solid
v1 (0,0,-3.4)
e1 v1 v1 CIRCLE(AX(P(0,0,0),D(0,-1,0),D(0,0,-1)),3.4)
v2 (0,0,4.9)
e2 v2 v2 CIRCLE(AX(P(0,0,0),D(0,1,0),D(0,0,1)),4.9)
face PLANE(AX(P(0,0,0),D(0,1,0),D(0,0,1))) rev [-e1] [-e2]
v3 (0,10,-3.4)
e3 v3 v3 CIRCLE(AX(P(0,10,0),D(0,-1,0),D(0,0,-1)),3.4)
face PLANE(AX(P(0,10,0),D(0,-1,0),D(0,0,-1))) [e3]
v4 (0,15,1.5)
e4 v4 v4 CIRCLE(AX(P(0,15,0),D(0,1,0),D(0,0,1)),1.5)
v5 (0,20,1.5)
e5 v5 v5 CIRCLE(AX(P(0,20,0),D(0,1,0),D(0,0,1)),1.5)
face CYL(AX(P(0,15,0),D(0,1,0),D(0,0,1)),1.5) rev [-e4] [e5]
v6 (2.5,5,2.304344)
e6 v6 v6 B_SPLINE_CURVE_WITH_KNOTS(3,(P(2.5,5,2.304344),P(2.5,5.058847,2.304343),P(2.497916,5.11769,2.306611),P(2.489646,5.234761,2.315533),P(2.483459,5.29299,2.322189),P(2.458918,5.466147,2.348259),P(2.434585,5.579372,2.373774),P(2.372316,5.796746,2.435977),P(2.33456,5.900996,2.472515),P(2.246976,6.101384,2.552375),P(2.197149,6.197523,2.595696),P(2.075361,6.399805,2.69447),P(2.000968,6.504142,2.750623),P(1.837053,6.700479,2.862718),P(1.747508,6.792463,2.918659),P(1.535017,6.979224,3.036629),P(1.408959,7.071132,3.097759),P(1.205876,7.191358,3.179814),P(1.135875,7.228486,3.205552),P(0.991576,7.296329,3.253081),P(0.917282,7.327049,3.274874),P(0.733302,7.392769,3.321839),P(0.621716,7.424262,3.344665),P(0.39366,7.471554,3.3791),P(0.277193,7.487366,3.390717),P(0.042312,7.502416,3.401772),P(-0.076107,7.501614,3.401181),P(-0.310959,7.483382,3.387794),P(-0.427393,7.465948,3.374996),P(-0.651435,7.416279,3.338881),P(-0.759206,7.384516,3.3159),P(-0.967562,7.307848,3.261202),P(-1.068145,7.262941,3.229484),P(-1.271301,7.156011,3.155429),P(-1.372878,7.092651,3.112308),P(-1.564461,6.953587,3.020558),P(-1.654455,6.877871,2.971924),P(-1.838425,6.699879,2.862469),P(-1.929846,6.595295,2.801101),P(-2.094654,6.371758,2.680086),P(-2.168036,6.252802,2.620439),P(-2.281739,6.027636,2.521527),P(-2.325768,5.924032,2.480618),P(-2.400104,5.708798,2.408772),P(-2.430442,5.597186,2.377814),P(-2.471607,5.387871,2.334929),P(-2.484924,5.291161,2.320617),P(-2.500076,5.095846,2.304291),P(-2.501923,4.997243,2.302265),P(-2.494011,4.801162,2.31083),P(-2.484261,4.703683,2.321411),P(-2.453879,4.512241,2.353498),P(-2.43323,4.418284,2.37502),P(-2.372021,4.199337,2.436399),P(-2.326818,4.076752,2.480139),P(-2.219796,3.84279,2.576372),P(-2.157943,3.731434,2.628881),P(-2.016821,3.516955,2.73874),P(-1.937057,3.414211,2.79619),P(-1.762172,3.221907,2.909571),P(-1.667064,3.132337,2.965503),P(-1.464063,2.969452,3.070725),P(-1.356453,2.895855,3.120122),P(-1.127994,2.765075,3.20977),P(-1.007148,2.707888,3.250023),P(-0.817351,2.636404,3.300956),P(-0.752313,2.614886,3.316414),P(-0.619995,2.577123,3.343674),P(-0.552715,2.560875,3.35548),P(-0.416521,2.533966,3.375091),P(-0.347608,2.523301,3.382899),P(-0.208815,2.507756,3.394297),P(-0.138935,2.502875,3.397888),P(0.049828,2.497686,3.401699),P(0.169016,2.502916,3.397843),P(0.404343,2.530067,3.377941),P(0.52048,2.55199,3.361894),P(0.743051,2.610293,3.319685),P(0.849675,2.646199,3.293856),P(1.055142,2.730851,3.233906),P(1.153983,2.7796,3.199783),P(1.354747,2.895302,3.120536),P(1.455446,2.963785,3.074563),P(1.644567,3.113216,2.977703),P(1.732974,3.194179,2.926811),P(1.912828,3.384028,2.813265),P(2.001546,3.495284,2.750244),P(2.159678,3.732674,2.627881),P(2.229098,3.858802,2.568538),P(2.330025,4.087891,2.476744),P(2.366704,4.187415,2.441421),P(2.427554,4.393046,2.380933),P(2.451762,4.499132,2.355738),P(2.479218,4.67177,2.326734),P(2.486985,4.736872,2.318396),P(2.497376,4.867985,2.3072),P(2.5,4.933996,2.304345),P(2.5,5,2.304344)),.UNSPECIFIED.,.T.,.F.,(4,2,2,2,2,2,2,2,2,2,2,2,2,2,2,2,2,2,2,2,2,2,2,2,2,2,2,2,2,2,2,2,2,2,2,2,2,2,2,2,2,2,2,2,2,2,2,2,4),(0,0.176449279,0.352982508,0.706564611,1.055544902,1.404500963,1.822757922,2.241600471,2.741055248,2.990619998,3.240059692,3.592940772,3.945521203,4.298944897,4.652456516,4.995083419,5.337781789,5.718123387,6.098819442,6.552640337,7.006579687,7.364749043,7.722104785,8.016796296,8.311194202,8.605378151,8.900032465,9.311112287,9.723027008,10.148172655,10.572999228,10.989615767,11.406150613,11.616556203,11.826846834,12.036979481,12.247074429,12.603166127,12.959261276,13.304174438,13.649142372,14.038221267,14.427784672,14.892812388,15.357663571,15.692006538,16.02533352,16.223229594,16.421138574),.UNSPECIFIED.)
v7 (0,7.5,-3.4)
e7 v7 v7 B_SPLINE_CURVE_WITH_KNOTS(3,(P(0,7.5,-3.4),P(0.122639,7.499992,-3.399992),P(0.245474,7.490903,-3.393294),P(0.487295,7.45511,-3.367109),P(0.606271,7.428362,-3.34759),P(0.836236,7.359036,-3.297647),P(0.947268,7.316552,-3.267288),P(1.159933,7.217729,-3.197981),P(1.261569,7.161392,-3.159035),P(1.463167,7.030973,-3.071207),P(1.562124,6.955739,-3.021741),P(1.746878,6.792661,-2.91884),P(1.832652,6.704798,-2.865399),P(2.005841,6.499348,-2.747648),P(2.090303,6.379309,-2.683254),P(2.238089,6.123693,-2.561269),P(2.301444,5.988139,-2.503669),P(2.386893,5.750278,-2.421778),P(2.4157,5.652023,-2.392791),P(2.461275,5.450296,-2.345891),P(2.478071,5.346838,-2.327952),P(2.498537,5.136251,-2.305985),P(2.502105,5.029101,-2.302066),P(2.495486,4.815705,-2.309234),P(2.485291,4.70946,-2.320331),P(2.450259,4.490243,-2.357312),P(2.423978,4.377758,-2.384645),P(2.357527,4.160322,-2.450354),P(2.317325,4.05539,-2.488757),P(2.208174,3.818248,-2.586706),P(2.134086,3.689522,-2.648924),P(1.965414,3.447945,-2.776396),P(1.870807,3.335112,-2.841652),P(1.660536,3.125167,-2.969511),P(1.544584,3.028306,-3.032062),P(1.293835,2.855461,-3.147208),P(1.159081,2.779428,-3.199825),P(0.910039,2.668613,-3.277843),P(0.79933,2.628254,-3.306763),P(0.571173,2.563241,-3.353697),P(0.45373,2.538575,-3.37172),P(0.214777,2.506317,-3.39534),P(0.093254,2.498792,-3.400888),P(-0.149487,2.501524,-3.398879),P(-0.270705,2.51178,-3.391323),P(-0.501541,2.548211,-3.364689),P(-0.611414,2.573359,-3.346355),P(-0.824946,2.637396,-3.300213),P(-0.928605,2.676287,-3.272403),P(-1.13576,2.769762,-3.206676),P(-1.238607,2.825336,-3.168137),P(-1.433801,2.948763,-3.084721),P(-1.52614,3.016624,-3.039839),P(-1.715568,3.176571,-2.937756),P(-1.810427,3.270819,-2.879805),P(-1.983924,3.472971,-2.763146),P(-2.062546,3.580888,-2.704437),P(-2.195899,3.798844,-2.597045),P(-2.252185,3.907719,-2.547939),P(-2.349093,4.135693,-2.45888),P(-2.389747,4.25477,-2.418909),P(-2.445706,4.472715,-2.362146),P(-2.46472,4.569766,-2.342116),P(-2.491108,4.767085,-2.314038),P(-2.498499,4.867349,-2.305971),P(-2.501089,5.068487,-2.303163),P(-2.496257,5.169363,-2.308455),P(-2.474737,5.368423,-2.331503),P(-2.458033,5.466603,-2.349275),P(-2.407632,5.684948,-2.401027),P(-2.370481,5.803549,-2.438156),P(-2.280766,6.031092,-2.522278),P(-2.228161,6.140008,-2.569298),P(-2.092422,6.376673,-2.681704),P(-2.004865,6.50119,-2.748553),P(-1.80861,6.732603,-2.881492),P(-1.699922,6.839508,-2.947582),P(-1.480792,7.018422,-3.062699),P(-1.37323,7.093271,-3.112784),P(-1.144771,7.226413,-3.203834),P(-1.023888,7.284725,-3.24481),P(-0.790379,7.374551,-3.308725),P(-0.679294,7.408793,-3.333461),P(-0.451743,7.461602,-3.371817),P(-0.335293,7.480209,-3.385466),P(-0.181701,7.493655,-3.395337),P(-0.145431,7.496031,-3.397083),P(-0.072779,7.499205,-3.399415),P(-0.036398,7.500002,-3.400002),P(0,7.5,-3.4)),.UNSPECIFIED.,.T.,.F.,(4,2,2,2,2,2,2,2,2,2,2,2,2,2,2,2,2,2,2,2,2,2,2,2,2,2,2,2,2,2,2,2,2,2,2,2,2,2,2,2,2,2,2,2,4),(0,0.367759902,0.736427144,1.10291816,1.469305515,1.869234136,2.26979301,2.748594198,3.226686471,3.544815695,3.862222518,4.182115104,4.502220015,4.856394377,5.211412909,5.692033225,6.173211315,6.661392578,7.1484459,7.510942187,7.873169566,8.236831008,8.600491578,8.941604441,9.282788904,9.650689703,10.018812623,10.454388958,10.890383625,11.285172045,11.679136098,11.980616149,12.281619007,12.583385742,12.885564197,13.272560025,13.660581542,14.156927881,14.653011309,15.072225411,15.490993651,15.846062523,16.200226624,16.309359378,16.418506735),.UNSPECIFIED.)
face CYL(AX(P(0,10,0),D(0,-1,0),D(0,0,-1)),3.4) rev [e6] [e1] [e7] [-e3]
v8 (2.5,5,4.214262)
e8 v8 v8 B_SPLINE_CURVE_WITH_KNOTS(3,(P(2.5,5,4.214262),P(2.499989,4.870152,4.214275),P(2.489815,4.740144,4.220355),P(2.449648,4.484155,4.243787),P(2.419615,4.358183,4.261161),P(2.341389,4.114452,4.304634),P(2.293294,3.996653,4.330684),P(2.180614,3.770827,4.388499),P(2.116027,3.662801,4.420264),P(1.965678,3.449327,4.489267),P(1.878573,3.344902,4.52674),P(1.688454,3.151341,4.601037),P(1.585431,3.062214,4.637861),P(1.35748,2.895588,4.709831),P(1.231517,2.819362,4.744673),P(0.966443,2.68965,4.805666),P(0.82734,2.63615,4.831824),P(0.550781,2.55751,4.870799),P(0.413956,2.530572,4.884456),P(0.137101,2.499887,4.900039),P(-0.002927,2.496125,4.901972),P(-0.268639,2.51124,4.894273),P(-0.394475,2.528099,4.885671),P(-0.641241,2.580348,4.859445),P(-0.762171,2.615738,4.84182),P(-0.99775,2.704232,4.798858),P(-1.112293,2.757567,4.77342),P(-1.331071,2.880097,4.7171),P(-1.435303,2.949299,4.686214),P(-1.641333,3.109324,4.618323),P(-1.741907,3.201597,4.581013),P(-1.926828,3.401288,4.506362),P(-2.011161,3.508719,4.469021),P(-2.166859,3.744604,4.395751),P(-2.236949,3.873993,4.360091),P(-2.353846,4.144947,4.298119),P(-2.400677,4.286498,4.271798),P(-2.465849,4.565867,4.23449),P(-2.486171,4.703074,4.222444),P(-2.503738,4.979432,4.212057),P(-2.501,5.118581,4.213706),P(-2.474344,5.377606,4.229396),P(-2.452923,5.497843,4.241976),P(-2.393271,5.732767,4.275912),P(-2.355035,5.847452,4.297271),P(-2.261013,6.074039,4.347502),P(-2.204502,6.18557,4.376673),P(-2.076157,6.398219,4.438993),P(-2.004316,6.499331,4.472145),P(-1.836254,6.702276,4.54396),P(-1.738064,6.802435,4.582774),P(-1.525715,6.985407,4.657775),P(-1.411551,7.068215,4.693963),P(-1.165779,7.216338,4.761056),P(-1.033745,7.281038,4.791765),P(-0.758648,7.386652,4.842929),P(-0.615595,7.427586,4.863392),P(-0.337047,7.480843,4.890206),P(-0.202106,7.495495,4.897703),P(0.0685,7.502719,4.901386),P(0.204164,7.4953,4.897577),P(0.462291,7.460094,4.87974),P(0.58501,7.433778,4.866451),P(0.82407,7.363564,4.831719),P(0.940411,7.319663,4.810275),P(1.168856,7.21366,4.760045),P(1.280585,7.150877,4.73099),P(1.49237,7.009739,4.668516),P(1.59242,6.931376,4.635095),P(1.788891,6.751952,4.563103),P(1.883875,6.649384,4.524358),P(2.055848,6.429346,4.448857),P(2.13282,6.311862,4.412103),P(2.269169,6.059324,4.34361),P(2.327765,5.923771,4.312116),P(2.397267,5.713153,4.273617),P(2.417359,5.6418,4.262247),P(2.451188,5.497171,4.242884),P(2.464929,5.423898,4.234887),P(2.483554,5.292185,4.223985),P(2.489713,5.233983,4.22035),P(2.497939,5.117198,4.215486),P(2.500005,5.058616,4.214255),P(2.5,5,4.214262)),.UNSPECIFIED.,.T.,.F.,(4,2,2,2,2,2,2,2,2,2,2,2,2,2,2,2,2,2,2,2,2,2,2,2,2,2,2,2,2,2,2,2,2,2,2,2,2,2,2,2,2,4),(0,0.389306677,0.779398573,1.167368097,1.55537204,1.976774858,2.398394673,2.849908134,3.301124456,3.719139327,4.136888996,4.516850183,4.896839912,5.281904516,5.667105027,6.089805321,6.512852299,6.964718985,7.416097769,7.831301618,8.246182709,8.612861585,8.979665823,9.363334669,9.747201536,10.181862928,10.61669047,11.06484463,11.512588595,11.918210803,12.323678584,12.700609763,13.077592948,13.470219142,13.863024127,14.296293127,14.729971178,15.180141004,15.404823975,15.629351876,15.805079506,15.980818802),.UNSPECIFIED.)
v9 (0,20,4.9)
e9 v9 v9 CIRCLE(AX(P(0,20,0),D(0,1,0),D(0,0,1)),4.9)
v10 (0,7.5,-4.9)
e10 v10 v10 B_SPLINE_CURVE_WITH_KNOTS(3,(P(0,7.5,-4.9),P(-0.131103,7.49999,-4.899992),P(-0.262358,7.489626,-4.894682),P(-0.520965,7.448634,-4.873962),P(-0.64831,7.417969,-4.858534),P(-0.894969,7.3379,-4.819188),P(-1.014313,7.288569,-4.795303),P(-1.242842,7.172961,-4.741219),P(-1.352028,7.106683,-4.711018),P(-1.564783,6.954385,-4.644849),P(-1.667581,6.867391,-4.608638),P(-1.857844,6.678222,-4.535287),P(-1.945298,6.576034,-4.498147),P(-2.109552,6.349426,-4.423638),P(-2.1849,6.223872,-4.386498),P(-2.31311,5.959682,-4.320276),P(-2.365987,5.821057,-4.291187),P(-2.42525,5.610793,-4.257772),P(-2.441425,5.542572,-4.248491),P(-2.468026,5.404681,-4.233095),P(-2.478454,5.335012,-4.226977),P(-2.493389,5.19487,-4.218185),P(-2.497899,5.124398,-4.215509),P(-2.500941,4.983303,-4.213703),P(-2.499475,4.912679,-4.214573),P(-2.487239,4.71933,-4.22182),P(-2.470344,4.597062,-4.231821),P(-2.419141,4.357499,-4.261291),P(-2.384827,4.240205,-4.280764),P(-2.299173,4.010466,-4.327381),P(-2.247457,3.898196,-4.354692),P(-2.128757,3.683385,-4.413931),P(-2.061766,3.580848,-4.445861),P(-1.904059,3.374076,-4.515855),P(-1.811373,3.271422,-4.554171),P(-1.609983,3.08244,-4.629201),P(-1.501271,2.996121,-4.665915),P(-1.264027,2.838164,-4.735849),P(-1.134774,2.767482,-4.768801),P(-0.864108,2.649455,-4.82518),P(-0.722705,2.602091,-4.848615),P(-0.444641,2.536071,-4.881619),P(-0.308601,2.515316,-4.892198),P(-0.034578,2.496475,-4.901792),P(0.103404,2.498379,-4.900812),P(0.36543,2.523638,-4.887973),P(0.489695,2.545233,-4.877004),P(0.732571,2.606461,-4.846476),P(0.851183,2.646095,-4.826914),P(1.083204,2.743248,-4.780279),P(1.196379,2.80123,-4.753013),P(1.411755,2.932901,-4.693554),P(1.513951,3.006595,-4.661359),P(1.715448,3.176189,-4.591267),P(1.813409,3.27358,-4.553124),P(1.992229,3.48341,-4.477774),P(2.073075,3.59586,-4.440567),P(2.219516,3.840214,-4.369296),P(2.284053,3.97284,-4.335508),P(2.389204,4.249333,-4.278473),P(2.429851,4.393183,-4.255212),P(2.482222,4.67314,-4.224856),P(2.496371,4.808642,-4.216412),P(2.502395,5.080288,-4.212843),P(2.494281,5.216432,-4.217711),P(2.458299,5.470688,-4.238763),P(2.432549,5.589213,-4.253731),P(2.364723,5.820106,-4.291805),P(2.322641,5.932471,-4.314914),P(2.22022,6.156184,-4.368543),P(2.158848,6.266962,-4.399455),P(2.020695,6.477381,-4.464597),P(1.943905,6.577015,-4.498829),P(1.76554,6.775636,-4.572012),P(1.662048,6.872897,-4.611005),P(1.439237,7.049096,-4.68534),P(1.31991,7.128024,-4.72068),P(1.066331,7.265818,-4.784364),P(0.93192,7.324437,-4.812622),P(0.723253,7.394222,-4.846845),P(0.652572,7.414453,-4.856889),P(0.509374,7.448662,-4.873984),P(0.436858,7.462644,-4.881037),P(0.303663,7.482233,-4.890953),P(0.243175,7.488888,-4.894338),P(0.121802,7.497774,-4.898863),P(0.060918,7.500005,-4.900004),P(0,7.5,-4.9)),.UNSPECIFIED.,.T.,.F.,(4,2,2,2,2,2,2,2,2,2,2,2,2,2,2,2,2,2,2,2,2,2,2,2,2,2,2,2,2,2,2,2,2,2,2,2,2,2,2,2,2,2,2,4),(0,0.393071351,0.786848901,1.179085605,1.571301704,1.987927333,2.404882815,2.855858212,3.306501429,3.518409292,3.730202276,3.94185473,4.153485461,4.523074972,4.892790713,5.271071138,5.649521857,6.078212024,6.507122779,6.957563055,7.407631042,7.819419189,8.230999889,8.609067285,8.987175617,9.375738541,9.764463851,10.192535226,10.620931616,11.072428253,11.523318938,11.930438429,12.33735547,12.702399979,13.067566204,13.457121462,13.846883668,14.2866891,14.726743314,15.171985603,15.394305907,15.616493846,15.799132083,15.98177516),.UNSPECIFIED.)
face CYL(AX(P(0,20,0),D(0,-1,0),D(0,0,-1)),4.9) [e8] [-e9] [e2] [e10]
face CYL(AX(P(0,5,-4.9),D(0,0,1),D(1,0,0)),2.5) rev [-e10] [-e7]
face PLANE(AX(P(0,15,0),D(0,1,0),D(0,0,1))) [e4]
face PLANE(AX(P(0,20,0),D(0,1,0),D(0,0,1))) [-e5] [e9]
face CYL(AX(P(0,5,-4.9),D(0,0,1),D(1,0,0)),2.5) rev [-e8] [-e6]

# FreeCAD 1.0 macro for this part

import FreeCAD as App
import Part
import Sketcher

doc = App.newDocument("Part")
params = doc.addObject("Spreadsheet::Sheet", "Params")
for row, (alias, value) in enumerate([
    ("sketch1_diameter", "9.8 mm"),
    ("pad1_length", "20 mm"),
    ("sketch2_diameter", "3 mm"),
    ("pocket1_length", "5 mm"),
    ("sketch3_diameter", "6.8 mm"),
    ("pocket2_length", "10 mm"),
    ("sketch4_diameter", "5 mm"),
], start=1):
    params.set(f"A{row}", alias)
    params.set(f"B{row}", "=" + value)
    params.setAlias(f"B{row}", alias)

body = doc.addObject("PartDesign::Body", "Body")

# Sketch on XZ plane
sketch1 = body.newObject("Sketcher::SketchObject", "Sketch")
sketch1.AttachmentSupport = (doc.getObject("XZ_Plane"), [""])
sketch1.MapMode = "FlatFace"
sketch1.addGeometry(Part.Circle(App.Vector(0, 0, 0), App.Vector(0, 0, 1), 4.9), False)
sketch1.addConstraint([
    Sketcher.Constraint("Coincident", 0, 3, -1, 1),
    Sketcher.Constraint("Diameter", 0, 9.8),
])
sketch1.setExpression("Constraints[1]", "Params.sketch1_diameter")
pad1 = body.newObject("PartDesign::Pad", "Pad")
pad1.Profile = sketch1
pad1.setExpression("Length", "Params.pad1_length")
pad1.Reversed = True

# Sketch on XZ plane
sketch2 = body.newObject("Sketcher::SketchObject", "Sketch001")
sketch2.AttachmentSupport = (doc.getObject("XZ_Plane"), [""])
sketch2.MapMode = "FlatFace"
sketch2.AttachmentOffset = App.Placement(App.Vector(0, 0, -20), App.Rotation())
sketch2.addGeometry(Part.Circle(App.Vector(0, 0, 0), App.Vector(0, 0, 1), 1.5), False)
sketch2.addConstraint([
    Sketcher.Constraint("Coincident", 0, 3, -1, 1),
    Sketcher.Constraint("Diameter", 0, 3.0),
])
sketch2.setExpression("Constraints[1]", "Params.sketch2_diameter")
pocket1 = body.newObject("PartDesign::Pocket", "Pocket")
pocket1.Profile = sketch2
pocket1.setExpression("Length", "Params.pocket1_length")
pocket1.Reversed = True

# Sketch on XZ plane
sketch3 = body.newObject("Sketcher::SketchObject", "Sketch002")
sketch3.AttachmentSupport = (doc.getObject("XZ_Plane"), [""])
sketch3.MapMode = "FlatFace"
sketch3.addGeometry(Part.Circle(App.Vector(0, 0, 0), App.Vector(0, 0, 1), 3.4), False)
sketch3.addConstraint([
    Sketcher.Constraint("Coincident", 0, 3, -1, 1),
    Sketcher.Constraint("Diameter", 0, 6.8),
])
sketch3.setExpression("Constraints[1]", "Params.sketch3_diameter")
pocket2 = body.newObject("PartDesign::Pocket", "Pocket001")
pocket2.Profile = sketch3
pocket2.setExpression("Length", "Params.pocket2_length")

# Sketch on XY plane
sketch4 = body.newObject("Sketcher::SketchObject", "Sketch003")
sketch4.AttachmentSupport = (doc.getObject("XY_Plane"), [""])
sketch4.MapMode = "FlatFace"
sketch4.addGeometry(Part.Circle(App.Vector(0, 5, 0), App.Vector(0, 0, 1), 2.5), False)
sketch4.addConstraint([
    Sketcher.Constraint("PointOnObject", 0, 3, -2),
    Sketcher.Constraint("Diameter", 0, 5.0),
    Sketcher.Constraint("DistanceY", -1, 1, 0, 3, 5.0),
])
sketch4.setExpression("Constraints[1]", "Params.sketch4_diameter")
pocket3 = body.newObject("PartDesign::Pocket", "Pocket002")
pocket3.Profile = sketch4
pocket3.Type = "ThroughAll"
pocket3.Midplane = True

doc.recompute()
